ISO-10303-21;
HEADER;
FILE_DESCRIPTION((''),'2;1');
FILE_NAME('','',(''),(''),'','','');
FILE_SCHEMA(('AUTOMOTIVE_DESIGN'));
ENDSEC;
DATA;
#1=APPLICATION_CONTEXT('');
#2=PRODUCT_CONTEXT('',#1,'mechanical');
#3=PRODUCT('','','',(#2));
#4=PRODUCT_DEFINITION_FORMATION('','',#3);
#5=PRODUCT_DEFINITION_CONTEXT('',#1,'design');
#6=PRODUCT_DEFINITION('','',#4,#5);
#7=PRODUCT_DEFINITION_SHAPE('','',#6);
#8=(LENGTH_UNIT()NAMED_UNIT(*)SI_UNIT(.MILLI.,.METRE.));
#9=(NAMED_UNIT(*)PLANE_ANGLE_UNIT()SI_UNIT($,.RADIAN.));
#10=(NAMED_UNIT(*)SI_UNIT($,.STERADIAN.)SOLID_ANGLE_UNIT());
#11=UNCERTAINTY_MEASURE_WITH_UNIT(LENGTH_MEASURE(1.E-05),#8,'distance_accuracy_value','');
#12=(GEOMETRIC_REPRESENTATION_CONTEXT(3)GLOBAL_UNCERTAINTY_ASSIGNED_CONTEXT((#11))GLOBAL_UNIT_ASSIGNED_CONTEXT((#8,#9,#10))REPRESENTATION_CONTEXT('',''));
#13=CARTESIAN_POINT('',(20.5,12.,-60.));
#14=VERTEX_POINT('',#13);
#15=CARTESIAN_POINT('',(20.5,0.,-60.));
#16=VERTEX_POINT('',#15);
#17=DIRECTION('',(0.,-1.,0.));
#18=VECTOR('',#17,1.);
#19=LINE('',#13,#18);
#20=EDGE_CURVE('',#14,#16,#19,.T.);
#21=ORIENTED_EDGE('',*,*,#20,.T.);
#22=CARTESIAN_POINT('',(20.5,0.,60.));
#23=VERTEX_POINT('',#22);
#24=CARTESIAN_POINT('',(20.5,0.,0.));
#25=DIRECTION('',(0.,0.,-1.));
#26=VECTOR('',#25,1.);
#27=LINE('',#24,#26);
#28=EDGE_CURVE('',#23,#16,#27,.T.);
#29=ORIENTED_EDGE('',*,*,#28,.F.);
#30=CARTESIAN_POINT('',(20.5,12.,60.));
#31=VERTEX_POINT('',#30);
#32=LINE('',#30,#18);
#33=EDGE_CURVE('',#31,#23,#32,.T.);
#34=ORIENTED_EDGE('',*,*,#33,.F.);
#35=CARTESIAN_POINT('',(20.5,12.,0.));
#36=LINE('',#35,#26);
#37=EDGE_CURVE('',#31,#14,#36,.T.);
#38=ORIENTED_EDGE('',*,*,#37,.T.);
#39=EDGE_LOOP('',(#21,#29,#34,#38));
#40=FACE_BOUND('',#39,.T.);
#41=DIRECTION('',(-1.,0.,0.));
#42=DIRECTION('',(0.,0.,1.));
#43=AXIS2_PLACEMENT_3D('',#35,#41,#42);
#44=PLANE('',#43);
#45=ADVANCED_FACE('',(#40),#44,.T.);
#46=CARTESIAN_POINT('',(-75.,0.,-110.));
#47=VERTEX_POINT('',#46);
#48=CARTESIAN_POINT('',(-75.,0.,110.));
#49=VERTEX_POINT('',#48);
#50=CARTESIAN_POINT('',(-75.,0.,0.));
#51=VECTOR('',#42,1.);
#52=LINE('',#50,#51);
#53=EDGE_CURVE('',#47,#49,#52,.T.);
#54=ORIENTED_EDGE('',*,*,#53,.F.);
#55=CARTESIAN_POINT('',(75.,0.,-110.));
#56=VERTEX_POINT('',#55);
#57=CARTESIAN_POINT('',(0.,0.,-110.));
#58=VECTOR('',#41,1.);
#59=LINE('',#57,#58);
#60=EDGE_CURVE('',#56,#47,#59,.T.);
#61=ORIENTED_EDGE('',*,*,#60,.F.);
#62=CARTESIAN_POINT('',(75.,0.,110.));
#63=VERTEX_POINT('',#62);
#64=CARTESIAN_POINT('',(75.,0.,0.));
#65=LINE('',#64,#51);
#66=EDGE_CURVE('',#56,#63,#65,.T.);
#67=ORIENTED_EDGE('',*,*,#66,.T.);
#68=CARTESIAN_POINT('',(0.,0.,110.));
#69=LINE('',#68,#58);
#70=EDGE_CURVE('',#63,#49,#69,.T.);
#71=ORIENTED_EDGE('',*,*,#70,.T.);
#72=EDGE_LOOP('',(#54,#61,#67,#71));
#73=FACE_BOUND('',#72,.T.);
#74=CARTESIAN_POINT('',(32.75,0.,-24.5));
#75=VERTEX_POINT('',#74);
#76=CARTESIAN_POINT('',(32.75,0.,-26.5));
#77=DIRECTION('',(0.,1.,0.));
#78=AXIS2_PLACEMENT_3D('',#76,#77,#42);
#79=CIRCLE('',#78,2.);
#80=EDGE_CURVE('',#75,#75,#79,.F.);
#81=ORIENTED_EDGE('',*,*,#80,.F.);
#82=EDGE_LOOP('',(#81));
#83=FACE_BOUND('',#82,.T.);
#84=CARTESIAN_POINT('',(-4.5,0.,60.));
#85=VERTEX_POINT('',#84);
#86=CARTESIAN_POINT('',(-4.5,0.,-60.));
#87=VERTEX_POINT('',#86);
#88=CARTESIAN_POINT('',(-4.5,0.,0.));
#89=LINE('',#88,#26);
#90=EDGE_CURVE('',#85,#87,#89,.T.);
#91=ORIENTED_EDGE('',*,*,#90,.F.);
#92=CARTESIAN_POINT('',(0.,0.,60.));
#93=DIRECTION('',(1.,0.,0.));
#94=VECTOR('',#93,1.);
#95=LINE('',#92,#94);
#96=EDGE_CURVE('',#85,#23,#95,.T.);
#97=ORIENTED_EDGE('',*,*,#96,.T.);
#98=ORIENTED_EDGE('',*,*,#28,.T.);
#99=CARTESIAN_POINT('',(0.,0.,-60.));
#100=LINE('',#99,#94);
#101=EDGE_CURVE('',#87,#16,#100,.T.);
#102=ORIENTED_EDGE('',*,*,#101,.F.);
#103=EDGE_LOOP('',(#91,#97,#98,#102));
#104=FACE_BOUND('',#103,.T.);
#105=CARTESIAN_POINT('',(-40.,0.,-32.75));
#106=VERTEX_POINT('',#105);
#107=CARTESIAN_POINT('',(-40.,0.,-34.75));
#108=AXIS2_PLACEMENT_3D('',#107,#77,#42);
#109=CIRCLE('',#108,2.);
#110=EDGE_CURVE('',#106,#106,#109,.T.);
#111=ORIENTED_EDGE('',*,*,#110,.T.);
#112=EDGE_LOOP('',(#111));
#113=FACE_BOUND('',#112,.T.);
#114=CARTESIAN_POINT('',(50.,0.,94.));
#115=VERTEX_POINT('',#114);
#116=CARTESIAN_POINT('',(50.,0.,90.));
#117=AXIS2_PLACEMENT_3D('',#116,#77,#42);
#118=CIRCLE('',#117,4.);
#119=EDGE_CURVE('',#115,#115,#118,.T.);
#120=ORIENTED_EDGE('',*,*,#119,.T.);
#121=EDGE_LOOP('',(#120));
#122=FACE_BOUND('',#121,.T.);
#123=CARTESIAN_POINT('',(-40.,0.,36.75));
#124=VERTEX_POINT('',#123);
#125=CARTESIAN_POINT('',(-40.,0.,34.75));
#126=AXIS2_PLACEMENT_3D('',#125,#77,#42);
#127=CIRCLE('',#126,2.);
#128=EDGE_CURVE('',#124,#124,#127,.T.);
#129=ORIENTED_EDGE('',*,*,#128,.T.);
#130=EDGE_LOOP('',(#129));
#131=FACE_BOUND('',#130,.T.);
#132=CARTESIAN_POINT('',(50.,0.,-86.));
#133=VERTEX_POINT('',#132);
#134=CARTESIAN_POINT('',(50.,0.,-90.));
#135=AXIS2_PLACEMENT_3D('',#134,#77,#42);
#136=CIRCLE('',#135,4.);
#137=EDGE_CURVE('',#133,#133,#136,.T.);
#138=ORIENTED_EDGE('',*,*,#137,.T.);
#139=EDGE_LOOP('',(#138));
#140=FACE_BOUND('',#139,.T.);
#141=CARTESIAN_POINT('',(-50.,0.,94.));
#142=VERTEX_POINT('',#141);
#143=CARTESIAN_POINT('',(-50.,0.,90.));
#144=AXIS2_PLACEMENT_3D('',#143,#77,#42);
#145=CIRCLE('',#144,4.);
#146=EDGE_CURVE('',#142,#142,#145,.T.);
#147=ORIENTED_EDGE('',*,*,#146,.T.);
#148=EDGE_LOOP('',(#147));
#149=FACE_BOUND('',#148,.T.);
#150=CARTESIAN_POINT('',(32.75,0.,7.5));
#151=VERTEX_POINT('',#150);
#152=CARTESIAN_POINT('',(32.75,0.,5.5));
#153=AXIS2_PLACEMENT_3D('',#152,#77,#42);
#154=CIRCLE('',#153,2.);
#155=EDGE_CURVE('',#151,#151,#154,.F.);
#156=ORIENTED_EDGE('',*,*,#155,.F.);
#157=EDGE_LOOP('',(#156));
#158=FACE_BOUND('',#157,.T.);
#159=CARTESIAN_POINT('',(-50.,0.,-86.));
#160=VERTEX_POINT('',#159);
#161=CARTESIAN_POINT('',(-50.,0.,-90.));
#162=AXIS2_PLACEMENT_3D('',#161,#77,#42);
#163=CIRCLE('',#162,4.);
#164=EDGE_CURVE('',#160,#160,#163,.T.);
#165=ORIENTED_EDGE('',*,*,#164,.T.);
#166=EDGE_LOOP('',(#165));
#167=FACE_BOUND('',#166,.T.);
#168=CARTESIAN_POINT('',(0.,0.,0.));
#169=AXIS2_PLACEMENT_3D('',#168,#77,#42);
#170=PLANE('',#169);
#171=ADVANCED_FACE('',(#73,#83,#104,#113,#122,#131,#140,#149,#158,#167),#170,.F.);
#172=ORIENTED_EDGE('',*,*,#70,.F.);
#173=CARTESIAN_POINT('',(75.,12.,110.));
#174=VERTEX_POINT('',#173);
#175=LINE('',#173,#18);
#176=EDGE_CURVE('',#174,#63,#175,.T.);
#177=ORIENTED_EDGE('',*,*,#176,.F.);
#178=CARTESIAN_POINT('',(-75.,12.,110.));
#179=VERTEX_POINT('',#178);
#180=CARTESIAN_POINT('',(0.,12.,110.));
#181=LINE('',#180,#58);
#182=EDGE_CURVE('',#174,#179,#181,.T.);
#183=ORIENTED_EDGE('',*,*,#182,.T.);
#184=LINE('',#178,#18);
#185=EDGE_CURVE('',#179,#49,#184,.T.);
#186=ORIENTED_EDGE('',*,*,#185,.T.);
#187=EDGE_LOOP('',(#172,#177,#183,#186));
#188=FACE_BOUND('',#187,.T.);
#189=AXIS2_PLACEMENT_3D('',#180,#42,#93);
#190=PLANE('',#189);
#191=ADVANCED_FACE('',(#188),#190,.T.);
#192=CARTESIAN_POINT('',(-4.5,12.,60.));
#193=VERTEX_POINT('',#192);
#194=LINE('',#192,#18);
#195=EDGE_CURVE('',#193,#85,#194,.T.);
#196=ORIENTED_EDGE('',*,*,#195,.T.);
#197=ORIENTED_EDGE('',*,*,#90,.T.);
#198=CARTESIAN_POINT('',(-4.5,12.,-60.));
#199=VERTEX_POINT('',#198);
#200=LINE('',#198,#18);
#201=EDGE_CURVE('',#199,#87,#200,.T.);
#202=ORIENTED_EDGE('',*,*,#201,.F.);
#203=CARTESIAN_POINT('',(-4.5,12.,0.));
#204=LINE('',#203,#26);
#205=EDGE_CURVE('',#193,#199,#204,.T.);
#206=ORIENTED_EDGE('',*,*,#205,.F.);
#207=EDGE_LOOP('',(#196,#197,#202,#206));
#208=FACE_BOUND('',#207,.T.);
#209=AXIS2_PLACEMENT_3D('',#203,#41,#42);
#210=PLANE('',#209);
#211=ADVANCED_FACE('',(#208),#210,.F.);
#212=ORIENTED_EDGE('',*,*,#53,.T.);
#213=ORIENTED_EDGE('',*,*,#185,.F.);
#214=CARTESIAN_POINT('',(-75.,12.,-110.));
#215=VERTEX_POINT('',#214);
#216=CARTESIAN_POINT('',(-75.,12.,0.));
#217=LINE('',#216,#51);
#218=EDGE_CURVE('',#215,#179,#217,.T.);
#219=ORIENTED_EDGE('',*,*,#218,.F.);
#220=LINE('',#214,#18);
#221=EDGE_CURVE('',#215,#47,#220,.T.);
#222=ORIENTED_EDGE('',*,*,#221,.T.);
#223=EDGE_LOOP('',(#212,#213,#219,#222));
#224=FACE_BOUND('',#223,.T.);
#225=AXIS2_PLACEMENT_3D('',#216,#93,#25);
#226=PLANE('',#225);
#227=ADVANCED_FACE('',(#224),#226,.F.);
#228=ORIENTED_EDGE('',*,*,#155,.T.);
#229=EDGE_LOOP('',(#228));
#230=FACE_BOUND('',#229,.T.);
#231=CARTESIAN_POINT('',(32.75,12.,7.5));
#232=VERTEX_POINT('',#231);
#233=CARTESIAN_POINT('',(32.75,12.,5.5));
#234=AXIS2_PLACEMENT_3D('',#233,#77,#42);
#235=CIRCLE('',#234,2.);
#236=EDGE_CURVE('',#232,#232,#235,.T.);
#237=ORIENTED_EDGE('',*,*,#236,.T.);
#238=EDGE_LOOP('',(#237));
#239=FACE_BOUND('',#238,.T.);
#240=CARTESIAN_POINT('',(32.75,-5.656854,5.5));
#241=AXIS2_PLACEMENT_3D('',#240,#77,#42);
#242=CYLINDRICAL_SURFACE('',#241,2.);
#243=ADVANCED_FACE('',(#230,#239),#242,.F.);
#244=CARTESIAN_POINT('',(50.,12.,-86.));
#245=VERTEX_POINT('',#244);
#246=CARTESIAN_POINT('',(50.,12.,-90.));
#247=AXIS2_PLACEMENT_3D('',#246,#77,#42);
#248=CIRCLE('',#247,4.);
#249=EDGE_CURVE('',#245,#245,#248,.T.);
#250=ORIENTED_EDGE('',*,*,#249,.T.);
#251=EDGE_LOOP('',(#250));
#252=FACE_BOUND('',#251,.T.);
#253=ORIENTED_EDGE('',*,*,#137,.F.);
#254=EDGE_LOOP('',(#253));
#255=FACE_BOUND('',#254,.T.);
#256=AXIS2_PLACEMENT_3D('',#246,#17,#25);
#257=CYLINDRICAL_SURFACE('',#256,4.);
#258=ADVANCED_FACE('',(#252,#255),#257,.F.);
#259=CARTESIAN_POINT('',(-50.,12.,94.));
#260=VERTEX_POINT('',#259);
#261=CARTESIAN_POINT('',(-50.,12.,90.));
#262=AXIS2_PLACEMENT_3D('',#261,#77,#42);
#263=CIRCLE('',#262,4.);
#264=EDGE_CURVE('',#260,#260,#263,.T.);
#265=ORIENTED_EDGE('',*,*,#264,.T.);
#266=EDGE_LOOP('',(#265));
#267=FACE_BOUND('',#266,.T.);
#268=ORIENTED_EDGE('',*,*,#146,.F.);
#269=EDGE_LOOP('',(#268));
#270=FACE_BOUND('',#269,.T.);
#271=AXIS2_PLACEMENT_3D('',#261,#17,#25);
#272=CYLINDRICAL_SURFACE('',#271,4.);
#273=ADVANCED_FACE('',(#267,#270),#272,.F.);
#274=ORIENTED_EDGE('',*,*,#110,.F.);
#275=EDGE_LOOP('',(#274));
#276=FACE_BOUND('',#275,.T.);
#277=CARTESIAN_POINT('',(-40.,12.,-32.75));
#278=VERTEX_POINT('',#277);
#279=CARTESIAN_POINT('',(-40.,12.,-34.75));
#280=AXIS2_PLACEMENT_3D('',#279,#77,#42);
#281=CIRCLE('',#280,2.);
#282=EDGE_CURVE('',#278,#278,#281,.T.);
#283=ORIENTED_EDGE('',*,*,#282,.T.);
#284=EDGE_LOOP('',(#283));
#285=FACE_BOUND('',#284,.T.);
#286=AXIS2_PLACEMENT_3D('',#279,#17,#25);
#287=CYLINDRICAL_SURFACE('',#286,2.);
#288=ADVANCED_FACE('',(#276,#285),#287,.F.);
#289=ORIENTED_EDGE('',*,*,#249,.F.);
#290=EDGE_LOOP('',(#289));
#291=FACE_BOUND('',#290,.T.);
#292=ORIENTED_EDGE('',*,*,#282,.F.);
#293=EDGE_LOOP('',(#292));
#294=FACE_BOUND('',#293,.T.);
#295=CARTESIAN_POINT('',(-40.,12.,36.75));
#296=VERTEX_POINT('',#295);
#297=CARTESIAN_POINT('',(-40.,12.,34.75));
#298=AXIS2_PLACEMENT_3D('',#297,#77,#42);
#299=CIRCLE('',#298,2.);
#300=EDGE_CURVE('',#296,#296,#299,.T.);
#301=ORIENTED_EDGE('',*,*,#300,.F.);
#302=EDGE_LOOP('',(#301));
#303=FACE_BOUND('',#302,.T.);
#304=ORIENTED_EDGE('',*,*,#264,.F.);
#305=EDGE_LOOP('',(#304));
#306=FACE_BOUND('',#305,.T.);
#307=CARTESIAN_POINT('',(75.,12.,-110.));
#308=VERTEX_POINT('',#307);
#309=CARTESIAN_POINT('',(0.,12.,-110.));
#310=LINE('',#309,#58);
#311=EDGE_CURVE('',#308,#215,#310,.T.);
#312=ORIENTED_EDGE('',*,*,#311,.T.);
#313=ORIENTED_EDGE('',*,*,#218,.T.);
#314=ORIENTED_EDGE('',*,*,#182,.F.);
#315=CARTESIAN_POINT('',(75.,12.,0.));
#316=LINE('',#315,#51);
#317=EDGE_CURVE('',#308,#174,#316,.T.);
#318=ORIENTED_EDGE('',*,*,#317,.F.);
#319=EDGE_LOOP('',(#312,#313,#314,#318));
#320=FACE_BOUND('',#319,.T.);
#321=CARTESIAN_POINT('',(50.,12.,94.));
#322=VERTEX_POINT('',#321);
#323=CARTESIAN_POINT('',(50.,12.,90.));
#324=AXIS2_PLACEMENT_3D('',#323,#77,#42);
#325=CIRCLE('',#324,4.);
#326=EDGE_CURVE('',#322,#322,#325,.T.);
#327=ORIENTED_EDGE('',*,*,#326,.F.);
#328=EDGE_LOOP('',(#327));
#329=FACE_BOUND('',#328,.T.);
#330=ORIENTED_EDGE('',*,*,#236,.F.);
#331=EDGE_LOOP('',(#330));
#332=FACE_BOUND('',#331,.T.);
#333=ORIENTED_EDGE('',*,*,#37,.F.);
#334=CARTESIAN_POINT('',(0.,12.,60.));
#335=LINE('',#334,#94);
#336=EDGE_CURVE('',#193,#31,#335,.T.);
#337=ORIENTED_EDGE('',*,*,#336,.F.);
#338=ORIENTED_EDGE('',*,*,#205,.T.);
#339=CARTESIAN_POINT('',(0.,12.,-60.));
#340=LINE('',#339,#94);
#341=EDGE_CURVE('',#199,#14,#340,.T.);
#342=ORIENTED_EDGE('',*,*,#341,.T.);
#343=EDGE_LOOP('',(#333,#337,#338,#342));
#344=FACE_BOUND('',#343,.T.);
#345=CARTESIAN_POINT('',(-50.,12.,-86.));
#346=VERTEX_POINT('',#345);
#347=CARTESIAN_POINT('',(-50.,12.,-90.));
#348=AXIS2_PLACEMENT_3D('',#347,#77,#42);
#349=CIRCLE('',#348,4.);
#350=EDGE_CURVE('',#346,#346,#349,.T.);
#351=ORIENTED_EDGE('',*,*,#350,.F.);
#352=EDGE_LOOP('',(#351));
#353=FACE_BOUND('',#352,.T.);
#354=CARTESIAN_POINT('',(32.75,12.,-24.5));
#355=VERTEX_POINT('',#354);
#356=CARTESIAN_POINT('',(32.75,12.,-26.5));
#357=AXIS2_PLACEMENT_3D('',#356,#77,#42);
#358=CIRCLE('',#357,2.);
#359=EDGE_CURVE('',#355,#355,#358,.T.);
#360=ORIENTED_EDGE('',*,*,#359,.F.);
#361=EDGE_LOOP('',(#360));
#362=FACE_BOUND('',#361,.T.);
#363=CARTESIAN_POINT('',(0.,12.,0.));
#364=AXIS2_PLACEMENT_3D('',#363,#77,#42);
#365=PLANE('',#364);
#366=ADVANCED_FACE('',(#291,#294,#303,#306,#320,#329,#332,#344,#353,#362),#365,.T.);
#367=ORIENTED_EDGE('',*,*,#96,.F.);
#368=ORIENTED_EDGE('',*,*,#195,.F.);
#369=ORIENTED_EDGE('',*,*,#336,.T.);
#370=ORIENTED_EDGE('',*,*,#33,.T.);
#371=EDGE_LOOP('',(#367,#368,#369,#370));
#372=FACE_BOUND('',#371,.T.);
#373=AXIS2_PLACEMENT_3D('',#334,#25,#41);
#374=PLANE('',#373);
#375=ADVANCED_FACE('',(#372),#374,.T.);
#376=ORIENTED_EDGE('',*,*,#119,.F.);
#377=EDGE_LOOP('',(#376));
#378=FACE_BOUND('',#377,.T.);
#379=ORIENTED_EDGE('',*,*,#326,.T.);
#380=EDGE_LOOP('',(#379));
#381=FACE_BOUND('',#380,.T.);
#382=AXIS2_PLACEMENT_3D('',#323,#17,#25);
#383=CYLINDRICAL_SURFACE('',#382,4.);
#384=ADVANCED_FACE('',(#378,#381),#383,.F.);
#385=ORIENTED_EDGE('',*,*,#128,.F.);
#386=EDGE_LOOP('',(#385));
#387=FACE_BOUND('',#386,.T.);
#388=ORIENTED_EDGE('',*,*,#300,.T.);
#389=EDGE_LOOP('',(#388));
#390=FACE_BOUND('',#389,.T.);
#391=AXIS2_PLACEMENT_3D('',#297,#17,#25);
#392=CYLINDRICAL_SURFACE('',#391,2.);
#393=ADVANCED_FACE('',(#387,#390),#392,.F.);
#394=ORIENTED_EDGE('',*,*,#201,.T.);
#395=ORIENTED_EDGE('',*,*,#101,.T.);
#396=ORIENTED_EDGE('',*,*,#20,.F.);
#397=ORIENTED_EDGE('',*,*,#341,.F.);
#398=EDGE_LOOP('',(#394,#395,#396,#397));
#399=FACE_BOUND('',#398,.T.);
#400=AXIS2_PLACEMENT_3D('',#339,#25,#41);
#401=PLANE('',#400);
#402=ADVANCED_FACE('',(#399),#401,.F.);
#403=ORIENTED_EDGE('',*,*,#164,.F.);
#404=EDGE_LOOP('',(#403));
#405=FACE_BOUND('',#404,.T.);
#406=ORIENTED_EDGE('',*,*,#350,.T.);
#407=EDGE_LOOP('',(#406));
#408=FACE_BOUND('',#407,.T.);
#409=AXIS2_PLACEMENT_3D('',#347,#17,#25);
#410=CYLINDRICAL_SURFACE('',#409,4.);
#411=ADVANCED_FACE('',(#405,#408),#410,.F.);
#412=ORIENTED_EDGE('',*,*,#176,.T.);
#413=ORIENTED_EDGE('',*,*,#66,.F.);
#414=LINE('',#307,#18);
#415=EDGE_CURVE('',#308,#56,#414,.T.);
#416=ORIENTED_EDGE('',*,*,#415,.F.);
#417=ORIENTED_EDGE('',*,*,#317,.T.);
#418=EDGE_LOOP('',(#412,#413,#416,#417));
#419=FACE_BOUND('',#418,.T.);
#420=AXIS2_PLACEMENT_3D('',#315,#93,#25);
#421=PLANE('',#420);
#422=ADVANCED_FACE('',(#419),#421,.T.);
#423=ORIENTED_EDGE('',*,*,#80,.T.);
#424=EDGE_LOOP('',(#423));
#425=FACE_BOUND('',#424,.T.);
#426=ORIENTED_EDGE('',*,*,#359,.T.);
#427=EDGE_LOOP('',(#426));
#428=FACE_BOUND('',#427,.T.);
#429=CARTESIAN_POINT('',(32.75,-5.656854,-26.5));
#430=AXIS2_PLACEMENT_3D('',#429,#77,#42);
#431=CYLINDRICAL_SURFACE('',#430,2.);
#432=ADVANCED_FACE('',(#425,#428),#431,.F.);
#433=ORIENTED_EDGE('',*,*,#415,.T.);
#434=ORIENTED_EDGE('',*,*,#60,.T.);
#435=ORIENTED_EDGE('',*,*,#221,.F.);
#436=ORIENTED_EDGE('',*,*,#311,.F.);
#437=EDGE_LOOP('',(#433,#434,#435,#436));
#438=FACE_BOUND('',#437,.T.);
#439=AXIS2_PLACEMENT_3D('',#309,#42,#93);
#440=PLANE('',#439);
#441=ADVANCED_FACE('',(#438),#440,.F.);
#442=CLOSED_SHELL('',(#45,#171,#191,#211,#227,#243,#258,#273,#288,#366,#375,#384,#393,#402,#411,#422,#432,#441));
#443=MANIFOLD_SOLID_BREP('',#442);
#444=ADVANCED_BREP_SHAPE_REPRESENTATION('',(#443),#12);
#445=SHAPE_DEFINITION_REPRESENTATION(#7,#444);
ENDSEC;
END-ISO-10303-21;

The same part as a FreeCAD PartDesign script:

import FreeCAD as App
import Part
import Sketcher
Q = App.Units.Quantity


def add_polygon(sketch, points):
    """Adds a closed chain of lines whose ends are joined by coincident constraints."""
    first, n = sketch.GeometryCount, len(points)
    for a, b in zip(points, points[1:] + points[:1]):
        sketch.addGeometry(Part.LineSegment(App.Vector(*a, 0), App.Vector(*b, 0)), False)
    for i in range(n):
        sketch.addConstraint(Sketcher.Constraint("Coincident", first + i, 2, first + (i + 1) % n, 1))

doc = App.newDocument("Part")
body = doc.addObject("PartDesign::Body", "Body")

# Sketch on XZ plane
sketch1 = body.newObject("Sketcher::SketchObject", "Sketch")
sketch1.AttachmentSupport = (doc.getObject("XZ_Plane"), [""])
sketch1.MapMode = "FlatFace"
add_polygon(sketch1, [(-75, -110), (-75, 110), (75, 110), (75, -110)])  # lines 0-3
sketch1.addGeometry(Part.Circle(App.Vector(-50, 90, 0), App.Vector(0, 0, 1), 4), False)  # 4
sketch1.addGeometry(Part.Circle(App.Vector(-40, 34.8, 0), App.Vector(0, 0, 1), 2), False)  # 5
sketch1.addGeometry(Part.Circle(App.Vector(50, 90, 0), App.Vector(0, 0, 1), 4), False)  # 6
sketch1.addGeometry(Part.Circle(App.Vector(-40, -34.8, 0), App.Vector(0, 0, 1), 2), False)  # 7
sketch1.addGeometry(Part.Circle(App.Vector(-50, -90, 0), App.Vector(0, 0, 1), 4), False)  # 8
add_polygon(sketch1, [(20.5, 60), (-4.5, 60), (-4.5, -60), (20.5, -60)])  # lines 9-12
sketch1.addGeometry(Part.Circle(App.Vector(50, -90, 0), App.Vector(0, 0, 1), 4), False)  # 13
sketch1.addConstraint([
    Sketcher.Constraint("Vertical", 0),
    Sketcher.Constraint("Horizontal", 1),
    Sketcher.Constraint("Vertical", 2),
    Sketcher.Constraint("Horizontal", 3),
    Sketcher.Constraint("Horizontal", 9),
    Sketcher.Constraint("Vertical", 10),
    Sketcher.Constraint("Horizontal", 11),
    Sketcher.Constraint("Vertical", 12),
    Sketcher.Constraint("Equal", 4, 6),
    Sketcher.Constraint("Equal", 5, 7),
    Sketcher.Constraint("Equal", 6, 8),
    Sketcher.Constraint("Equal", 8, 13),
    Sketcher.Constraint("Symmetric", 6, 3, 8, 3, -1, 1),
    Sketcher.Constraint("Symmetric", 4, 3, 13, 3, -1, 1),
    Sketcher.Constraint("Symmetric", 0, 2, 2, 2, -1, 1),
    Sketcher.Constraint("Symmetric", 4, 3, 6, 3, -2),
    Sketcher.Constraint("Symmetric", 5, 3, 7, 3, -1),
    Sketcher.Constraint("Diameter", 4, Q("8 mm")),
    Sketcher.Constraint("Diameter", 5, Q("4 mm")),
    Sketcher.Constraint("DistanceX", 1, 1, 1, 2, Q("150 mm")),
    Sketcher.Constraint("DistanceX", 9, 2, 9, 1, Q("25 mm")),
    Sketcher.Constraint("DistanceY", 0, 1, 0, 2, Q("220 mm")),
    Sketcher.Constraint("DistanceY", 10, 2, 10, 1, Q("120 mm")),
    Sketcher.Constraint("DistanceX", 4, 3, -1, 1, Q("50 mm")),
    Sketcher.Constraint("DistanceY", -1, 1, 4, 3, Q("90 mm")),
    Sketcher.Constraint("DistanceX", 5, 3, -1, 1, Q("40 mm")),
    Sketcher.Constraint("DistanceY", -1, 1, 9, 2, Q("60 mm")),
    Sketcher.Constraint("DistanceX", 9, 2, -1, 1, Q("4.5 mm")),
    Sketcher.Constraint("DistanceY", 7, 3, 5, 3, Q("69.5 mm")),
])
pad1 = body.newObject("PartDesign::Pad", "Pad")
pad1.Profile = sketch1
pad1.Length = 12
pad1.Reversed = True

# Sketch on XZ plane
sketch2 = body.newObject("Sketcher::SketchObject", "Sketch001")
sketch2.AttachmentSupport = (doc.getObject("XZ_Plane"), [""])
sketch2.MapMode = "FlatFace"
sketch2.AttachmentOffset = App.Placement(App.Vector(0, 0, -12), App.Rotation())
sketch2.addGeometry([
    Part.Circle(App.Vector(32.8, -26.5, 0), App.Vector(0, 0, 1), 2),
    Part.Circle(App.Vector(32.8, 5.5, 0), App.Vector(0, 0, 1), 2),
], False)
sketch2.addConstraint([
    Sketcher.Constraint("Equal", 0, 1),
    Sketcher.Constraint("Vertical", 0, 3, 1, 3),
    Sketcher.Constraint("Diameter", 0, Q("4 mm")),
    Sketcher.Constraint("DistanceY", 0, 3, 1, 3, Q("32 mm")),
    Sketcher.Constraint("DistanceY", 0, 3, -1, 1, Q("26.5 mm")),
    Sketcher.Constraint("DistanceX", -1, 1, 0, 3, Q("32.75 mm")),
])
pocket1 = body.newObject("PartDesign::Pocket", "Pocket")
pocket1.Profile = sketch2
pocket1.Length = 12
pocket1.Reversed = True

doc.recompute()
